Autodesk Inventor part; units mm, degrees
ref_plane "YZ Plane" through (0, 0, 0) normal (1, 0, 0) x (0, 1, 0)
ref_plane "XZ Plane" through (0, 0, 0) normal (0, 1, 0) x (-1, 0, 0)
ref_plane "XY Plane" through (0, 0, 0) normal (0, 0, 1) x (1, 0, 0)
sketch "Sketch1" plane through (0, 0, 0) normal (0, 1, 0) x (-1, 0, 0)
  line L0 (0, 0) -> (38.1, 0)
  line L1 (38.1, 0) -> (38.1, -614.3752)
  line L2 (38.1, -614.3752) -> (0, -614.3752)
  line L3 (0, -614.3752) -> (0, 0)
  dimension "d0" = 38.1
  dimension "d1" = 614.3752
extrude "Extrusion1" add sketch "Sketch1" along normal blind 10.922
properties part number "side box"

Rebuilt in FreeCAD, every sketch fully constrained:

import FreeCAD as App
import Part
import Sketcher
Q = App.Units.Quantity


def add_polygon(sketch, points):
    """Adds a closed chain of lines whose ends are joined by coincident constraints."""
    first, n = sketch.GeometryCount, len(points)
    for a, b in zip(points, points[1:] + points[:1]):
        sketch.addGeometry(Part.LineSegment(App.Vector(*a, 0), App.Vector(*b, 0)), False)
    for i in range(n):
        sketch.addConstraint(Sketcher.Constraint("Coincident", first + i, 2, first + (i + 1) % n, 1))

doc = App.newDocument("Part")
body = doc.addObject("PartDesign::Body", "Body")

sketch1 = body.newObject("Sketcher::SketchObject", "Sketch")
sketch1.AttachmentSupport = (doc.getObject("XZ_Plane"), [""])
sketch1.MapMode = "FlatFace"
add_polygon(sketch1, [(-38, 0), (0, 0), (0, -614), (-38, -614)])
sketch1.addConstraint(Sketcher.Constraint("Horizontal", 0))
sketch1.addConstraint(Sketcher.Constraint("Vertical", 1))
sketch1.addConstraint(Sketcher.Constraint("Horizontal", 2))
sketch1.addConstraint(Sketcher.Constraint("Vertical", 3))
sketch1.addConstraint(Sketcher.Constraint("Coincident", 0, 2, -1, 1))
sketch1.addConstraint(Sketcher.Constraint("DistanceX", 0, 1, 0, 2, Q("1.5 in")))
sketch1.addConstraint(Sketcher.Constraint("DistanceY", 1, 2, 1, 1, Q("24.188 in")))
pad1 = body.newObject("PartDesign::Pad", "Pad")
pad1.Profile = sketch1
pad1.Length = Q("0.43 in")
pad1.Reversed = True

doc.recompute()
